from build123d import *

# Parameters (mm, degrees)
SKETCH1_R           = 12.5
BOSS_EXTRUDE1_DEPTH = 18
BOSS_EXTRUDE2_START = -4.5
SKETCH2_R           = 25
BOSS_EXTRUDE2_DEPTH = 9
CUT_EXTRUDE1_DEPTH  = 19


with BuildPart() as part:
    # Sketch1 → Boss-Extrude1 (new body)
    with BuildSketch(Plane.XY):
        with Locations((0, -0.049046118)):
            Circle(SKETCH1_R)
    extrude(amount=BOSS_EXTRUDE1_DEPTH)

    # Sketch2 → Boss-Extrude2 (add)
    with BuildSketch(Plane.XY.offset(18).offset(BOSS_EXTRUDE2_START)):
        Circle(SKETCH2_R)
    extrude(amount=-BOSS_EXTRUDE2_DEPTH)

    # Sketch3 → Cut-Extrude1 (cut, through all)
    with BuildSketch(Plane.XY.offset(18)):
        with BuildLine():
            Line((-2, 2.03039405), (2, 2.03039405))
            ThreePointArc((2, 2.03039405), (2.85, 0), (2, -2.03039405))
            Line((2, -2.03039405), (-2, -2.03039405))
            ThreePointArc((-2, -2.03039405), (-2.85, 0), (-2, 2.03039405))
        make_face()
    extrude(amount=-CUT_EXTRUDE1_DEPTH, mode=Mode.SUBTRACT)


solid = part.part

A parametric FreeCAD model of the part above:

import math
import FreeCAD as App
import Part
import Sketcher

V = App.Vector
Q = App.Units.Quantity

doc = App.newDocument("Part")
body = doc.addObject("PartDesign::Body", "Body")

# Sketch on XY plane
sketch1 = body.newObject("Sketcher::SketchObject", "Sketch")
sketch1.AttachmentSupport = (doc.getObject("XY_Plane"), [""])
sketch1.MapMode = "FlatFace"
sketch1.addGeometry(Part.Circle(V(0, -0.049046, 0), V(0, 0, 1), 12.5), False)
sketch1.addConstraint(Sketcher.Constraint("PointOnObject", 0, 3, -2))
sketch1.addConstraint(Sketcher.Constraint("Diameter", 0, Q("25 mm")))
sketch1.addConstraint(Sketcher.Constraint("DistanceY", 0, 3, -1, 1, Q("0.049046 mm")))
pad1 = body.newObject("PartDesign::Pad", "Pad")
pad1.Profile = sketch1
pad1.Length = 18

# Sketch on XY plane
sketch2 = body.newObject("Sketcher::SketchObject", "Sketch001")
sketch2.AttachmentSupport = (doc.getObject("XY_Plane"), [""])
sketch2.MapMode = "FlatFace"
sketch2.AttachmentOffset = App.Placement(V(0, 0, 13.5), App.Rotation())
sketch2.addGeometry(Part.Circle(V(0, 0, 0), V(0, 0, 1), 25), False)
sketch2.addConstraint(Sketcher.Constraint("Coincident", 0, 3, -1, 1))
sketch2.addConstraint(Sketcher.Constraint("Diameter", 0, Q("50 mm")))
pad2 = body.newObject("PartDesign::Pad", "Pad001")
pad2.Profile = sketch2
pad2.Length = 9
pad2.Reversed = True

# Sketch on XY plane
sketch3 = body.newObject("Sketcher::SketchObject", "Sketch002")
sketch3.AttachmentSupport = (doc.getObject("XY_Plane"), [""])
sketch3.MapMode = "FlatFace"
sketch3.AttachmentOffset = App.Placement(V(0, 0, 18), App.Rotation())
sketch3.addGeometry(Part.LineSegment(V(2, 2.030394, 0), V(-2, 2.030394, 0)), False)
sketch3.addGeometry(Part.ArcOfCircle(Part.Circle(V(0, 0, 0), V(0, 0, 1), 2.85), math.radians(134.567929), math.radians(225.432071)), False)
sketch3.addGeometry(Part.LineSegment(V(-2, -2.030394, 0), V(2, -2.030394, 0)), False)
sketch3.addGeometry(Part.ArcOfCircle(Part.Circle(V(0, 0, 0), V(0, 0, 1), 2.85), math.radians(-45.432071), math.radians(45.432071)), False)
sketch3.addConstraint(Sketcher.Constraint("Coincident", 0, 2, 1, 1))
sketch3.addConstraint(Sketcher.Constraint("Coincident", 1, 2, 2, 1))
sketch3.addConstraint(Sketcher.Constraint("Coincident", 2, 2, 3, 1))
sketch3.addConstraint(Sketcher.Constraint("Coincident", 3, 2, 0, 1))
sketch3.addConstraint(Sketcher.Constraint("Horizontal", 0))
sketch3.addConstraint(Sketcher.Constraint("Horizontal", 2))
sketch3.addConstraint(Sketcher.Constraint("Coincident", 1, 3, -1, 1))
sketch3.addConstraint(Sketcher.Constraint("Coincident", 3, 3, -1, 1))
sketch3.addConstraint(Sketcher.Constraint("Equal", 1, 3))
sketch3.addConstraint(Sketcher.Constraint("Vertical", 0, 2, 1, 2))
sketch3.addConstraint(Sketcher.Constraint("DistanceX", 0, 2, 0, 1, Q("4 mm")))
sketch3.addConstraint(Sketcher.Constraint("Radius", 1, Q("2.85 mm")))
pocket1 = body.newObject("PartDesign::Pocket", "Pocket")
pocket1.Profile = sketch3
pocket1.Type = "ThroughAll"

doc.recompute()
